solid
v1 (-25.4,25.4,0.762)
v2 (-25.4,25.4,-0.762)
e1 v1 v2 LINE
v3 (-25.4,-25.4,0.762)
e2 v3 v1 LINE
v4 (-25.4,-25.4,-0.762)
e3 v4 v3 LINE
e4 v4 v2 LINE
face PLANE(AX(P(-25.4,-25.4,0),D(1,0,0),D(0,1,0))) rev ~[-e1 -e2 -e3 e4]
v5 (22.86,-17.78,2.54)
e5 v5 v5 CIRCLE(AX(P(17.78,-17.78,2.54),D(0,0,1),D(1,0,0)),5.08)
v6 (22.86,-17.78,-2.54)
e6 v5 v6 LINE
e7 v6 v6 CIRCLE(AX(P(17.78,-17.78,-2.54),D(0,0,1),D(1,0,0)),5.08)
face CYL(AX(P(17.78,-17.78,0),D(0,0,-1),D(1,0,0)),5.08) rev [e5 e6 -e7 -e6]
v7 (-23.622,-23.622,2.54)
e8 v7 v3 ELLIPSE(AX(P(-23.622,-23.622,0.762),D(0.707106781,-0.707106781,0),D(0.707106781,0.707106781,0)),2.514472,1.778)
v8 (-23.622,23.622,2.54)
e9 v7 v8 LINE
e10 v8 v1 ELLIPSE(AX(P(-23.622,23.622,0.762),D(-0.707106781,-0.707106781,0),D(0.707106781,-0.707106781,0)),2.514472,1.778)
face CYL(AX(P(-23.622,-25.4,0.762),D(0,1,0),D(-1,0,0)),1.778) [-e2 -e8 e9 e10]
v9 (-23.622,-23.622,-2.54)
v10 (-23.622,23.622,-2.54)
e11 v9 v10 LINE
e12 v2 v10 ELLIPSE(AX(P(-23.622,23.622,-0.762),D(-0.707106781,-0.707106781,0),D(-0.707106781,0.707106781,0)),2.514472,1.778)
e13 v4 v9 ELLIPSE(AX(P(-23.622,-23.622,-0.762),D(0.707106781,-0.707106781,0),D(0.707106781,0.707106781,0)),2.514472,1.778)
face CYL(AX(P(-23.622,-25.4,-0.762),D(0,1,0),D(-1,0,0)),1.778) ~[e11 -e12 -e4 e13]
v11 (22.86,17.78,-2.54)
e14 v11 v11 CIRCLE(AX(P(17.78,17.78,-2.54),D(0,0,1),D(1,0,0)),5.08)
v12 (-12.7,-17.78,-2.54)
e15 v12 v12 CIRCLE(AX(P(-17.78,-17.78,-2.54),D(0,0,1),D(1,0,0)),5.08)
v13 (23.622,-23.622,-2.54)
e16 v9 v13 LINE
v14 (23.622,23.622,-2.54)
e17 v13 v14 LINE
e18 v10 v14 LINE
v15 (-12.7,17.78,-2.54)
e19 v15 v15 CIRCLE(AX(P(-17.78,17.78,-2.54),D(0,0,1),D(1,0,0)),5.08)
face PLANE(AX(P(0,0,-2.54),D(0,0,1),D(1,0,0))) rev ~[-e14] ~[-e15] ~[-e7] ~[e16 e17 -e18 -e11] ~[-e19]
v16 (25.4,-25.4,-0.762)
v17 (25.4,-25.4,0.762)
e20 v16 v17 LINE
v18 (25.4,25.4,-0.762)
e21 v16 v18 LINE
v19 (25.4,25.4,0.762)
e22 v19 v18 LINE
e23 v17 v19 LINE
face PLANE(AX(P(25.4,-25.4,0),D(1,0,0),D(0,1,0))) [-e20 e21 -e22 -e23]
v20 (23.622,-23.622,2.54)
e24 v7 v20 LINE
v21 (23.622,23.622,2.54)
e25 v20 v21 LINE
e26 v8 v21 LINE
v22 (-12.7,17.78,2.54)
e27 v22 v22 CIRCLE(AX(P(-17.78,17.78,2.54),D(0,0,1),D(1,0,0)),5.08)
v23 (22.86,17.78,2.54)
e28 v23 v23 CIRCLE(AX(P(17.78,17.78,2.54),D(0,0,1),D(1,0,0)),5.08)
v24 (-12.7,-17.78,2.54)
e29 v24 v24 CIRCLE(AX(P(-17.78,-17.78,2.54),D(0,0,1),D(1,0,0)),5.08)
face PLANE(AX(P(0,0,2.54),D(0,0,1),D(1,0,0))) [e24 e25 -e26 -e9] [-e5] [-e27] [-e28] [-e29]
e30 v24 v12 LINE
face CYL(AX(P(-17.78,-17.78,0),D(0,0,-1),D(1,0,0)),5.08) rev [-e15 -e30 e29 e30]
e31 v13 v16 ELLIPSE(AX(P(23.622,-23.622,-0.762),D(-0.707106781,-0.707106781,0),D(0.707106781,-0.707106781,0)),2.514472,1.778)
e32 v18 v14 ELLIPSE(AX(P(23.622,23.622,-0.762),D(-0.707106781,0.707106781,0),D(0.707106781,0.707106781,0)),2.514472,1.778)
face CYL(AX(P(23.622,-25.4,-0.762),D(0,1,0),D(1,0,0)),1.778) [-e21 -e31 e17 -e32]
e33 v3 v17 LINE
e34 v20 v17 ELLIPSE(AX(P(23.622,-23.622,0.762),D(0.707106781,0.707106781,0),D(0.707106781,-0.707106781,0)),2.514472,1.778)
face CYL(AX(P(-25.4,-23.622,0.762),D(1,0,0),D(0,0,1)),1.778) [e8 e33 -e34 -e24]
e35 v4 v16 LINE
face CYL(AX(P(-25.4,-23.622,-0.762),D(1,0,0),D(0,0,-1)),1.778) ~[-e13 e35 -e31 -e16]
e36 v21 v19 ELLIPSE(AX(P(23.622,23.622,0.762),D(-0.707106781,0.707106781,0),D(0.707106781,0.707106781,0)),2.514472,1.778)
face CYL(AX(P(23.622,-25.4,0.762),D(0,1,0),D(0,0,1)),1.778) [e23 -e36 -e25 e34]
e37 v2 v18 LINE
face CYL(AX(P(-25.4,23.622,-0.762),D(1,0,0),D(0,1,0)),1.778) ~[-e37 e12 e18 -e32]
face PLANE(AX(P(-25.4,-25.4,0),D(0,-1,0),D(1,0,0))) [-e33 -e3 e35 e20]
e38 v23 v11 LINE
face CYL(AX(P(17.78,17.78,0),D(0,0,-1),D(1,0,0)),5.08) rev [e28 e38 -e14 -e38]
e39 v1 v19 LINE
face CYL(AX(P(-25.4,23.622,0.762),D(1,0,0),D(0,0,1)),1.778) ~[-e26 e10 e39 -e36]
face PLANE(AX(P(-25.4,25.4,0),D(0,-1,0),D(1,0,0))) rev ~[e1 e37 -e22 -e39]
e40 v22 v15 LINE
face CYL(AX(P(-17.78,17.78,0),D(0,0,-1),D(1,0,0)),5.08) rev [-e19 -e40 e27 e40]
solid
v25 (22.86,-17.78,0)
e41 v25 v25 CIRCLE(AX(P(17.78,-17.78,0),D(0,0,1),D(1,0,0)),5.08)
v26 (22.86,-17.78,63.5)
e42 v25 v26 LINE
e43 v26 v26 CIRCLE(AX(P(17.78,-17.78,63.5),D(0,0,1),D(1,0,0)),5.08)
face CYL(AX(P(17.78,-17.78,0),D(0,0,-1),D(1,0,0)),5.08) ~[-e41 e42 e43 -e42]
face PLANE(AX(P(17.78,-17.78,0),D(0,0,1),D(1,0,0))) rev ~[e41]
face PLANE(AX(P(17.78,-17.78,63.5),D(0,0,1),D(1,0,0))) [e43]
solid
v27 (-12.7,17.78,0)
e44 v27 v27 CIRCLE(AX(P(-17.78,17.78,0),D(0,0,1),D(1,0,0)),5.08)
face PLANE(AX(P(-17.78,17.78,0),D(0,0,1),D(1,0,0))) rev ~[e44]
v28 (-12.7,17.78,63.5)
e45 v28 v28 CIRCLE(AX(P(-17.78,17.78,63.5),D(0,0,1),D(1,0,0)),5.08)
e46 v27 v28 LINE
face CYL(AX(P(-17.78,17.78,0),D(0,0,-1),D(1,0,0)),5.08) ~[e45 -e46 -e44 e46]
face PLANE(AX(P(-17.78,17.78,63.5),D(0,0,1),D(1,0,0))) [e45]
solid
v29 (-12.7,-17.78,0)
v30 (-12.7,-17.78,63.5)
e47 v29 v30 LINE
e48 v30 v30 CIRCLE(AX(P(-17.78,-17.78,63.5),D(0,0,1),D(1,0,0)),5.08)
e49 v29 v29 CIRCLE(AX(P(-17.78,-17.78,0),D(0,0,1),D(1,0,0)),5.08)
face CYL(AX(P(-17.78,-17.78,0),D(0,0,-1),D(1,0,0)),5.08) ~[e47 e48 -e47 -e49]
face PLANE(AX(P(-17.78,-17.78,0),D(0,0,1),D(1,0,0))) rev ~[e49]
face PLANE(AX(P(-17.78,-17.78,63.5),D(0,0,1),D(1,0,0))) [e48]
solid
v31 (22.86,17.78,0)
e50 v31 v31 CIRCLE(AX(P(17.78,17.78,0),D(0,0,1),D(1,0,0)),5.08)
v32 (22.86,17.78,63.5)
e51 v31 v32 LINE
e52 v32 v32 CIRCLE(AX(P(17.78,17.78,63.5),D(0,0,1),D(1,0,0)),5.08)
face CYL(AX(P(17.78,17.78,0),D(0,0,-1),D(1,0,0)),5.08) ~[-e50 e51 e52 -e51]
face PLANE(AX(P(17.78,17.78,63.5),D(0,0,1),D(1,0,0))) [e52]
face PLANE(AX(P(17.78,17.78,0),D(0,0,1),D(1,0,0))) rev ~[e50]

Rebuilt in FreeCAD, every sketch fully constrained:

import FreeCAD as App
import Part
import Sketcher

V = App.Vector
Q = App.Units.Quantity


def edges_at(feature, points):
    """Names of the edges that pass closest to the given points."""
    edges = feature.Shape.Edges
    near = lambda p: min(range(len(edges)), key=lambda i: edges[i].distToShape(Part.Vertex(*p))[0])
    return sorted({f"Edge{near(p) + 1}" for p in points})


def add_polygon(sketch, points):
    """Adds a closed chain of lines whose ends are joined by coincident constraints."""
    first, n = sketch.GeometryCount, len(points)
    for a, b in zip(points, points[1:] + points[:1]):
        sketch.addGeometry(Part.LineSegment(App.Vector(*a, 0), App.Vector(*b, 0)), False)
    for i in range(n):
        sketch.addConstraint(Sketcher.Constraint("Coincident", first + i, 2, first + (i + 1) % n, 1))

doc = App.newDocument("Part")
body = doc.addObject("PartDesign::Body", "Body")
body.AllowCompound = True

# Sketch on XY plane
sketch1 = doc.addObject("Sketcher::SketchObject", "Sketch")
body.addObject(sketch1)
sketch1.AttachmentSupport = (doc.XY_Plane, [""])
sketch1.MapMode = "FlatFace"
sketch1.addGeometry([
    Part.Circle(V(-18, 18, 0), V(0, 0, 1), 5),
    Part.Circle(V(18, 18, 0), V(0, 0, 1), 5),
    Part.Circle(V(18, -18, 0), V(0, 0, 1), 5),
    Part.Circle(V(-18, -18, 0), V(0, 0, 1), 5),
], False)
sketch1.addConstraint([
    Sketcher.Constraint("Equal", 0, 1),
    Sketcher.Constraint("Equal", 1, 2),
    Sketcher.Constraint("Equal", 2, 3),
    Sketcher.Constraint("Symmetric", 0, 3, 2, 3, -1, 1),
    Sketcher.Constraint("Symmetric", 1, 3, 3, 3, -1, 1),
    Sketcher.Constraint("Symmetric", 0, 3, 1, 3, -2),
    Sketcher.Constraint("Diameter", 0, Q("0.4 in")),
    Sketcher.Constraint("DistanceX", 0, 3, -1, 1, Q("0.7 in")),
    Sketcher.Constraint("DistanceY", -1, 1, 0, 3, Q("0.7 in")),
])
pad1 = doc.addObject("PartDesign::Pad", "Pad")
body.addObject(pad1)
pad1.Profile = sketch1
pad1.Length = Q("2.5 in")
body2 = doc.addObject("PartDesign::Body", "Body001")

# Sketch on XY plane
sketch2 = doc.addObject("Sketcher::SketchObject", "Sketch001")
body2.addObject(sketch2)
sketch2.AttachmentSupport = (doc.getObject("XY_Plane001"), [""])
sketch2.MapMode = "FlatFace"
add_polygon(sketch2, [(-25, 25), (-25, -25), (25, -25), (25, 25)])  # lines 0-3
sketch2.addGeometry(Part.Circle(V(-18, -18, 0), V(0, 0, 1), 5), False)  # 4
sketch2.addGeometry(Part.Circle(V(18, -18, 0), V(0, 0, 1), 5), False)  # 5
sketch2.addGeometry(Part.Circle(V(-18, 18, 0), V(0, 0, 1), 5), False)  # 6
sketch2.addGeometry(Part.Circle(V(18, 18, 0), V(0, 0, 1), 5), False)  # 7
sketch2.addConstraint([
    Sketcher.Constraint("Vertical", 0),
    Sketcher.Constraint("Horizontal", 1),
    Sketcher.Constraint("Vertical", 2),
    Sketcher.Constraint("Horizontal", 3),
    Sketcher.Constraint("Equal", 4, 5),
    Sketcher.Constraint("Equal", 5, 6),
    Sketcher.Constraint("Equal", 6, 7),
    Sketcher.Constraint("Symmetric", 5, 3, 6, 3, -1, 1),
    Sketcher.Constraint("Symmetric", 4, 3, 7, 3, -1, 1),
    Sketcher.Constraint("Symmetric", 0, 2, 2, 2, -1, 1),
    Sketcher.Constraint("Symmetric", 4, 3, 5, 3, -2),
    Sketcher.Constraint("Equal", 3, 0),
    Sketcher.Constraint("Diameter", 4, Q("0.4 in")),
    Sketcher.Constraint("DistanceX", 1, 1, 1, 2, Q("2 in")),
    Sketcher.Constraint("DistanceX", 4, 3, -1, 1, Q("0.7 in")),
    Sketcher.Constraint("DistanceY", 4, 3, -1, 1, Q("0.7 in")),
])
pad2 = doc.addObject("PartDesign::Pad", "Pad001")
body2.addObject(pad2)
pad2.Profile = sketch2
pad2.Length = Q("0.2 in")
pad2.Midplane = True
doc.recompute()

fillet = doc.addObject("PartDesign::Fillet", "Fillet")
body2.addObject(fillet)
fillet.Base = (pad2, edges_at(pad2, [
    (-25.4, 0, -2.54),
    (0, -25.4, -2.54),
    (25.4, 0, -2.54),
    (0, 25.4, -2.54),
    (0, -25.4, 2.54),
    (25.4, 0, 2.54),
    (0, 25.4, 2.54),
    (-25.4, 0, 2.54),
]))
fillet.Radius = Q("0.07 in")

doc.recompute()
